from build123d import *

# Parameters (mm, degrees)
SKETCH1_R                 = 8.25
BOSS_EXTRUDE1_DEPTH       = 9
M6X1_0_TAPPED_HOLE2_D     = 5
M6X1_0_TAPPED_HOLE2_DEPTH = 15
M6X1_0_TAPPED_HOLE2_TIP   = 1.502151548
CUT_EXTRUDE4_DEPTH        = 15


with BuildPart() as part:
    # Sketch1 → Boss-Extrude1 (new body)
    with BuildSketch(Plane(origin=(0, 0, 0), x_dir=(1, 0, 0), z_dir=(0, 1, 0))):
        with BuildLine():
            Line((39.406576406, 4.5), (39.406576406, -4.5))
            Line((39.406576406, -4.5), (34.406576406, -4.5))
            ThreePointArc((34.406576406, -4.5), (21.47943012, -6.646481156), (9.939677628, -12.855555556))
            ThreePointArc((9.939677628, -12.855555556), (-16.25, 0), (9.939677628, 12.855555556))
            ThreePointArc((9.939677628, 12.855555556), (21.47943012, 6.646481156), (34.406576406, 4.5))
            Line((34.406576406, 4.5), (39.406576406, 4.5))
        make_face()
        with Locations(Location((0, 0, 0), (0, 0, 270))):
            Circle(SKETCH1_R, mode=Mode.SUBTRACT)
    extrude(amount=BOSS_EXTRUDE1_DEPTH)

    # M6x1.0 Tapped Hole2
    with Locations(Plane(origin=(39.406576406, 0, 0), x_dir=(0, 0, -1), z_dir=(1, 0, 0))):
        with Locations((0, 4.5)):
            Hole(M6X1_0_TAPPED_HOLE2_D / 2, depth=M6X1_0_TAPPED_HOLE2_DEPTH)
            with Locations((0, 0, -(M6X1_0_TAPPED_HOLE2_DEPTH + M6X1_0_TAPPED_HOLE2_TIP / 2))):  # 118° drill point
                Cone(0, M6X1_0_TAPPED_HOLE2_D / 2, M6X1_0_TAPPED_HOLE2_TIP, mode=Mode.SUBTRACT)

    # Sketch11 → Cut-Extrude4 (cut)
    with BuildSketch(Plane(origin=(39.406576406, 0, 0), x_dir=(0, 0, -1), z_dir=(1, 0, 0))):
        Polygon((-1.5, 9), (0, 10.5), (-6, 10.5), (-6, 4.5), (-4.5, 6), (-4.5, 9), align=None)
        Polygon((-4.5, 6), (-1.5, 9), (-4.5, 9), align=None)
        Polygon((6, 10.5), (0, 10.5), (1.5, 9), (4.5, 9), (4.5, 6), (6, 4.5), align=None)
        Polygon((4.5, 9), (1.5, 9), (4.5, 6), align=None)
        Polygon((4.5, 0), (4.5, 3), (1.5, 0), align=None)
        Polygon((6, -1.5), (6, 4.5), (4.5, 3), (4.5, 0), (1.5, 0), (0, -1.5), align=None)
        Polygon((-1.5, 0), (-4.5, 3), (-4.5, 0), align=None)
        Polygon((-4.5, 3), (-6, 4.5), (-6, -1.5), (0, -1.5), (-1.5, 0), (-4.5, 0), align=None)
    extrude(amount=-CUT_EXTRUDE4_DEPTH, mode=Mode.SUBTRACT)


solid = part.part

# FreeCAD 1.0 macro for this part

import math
import FreeCAD as App
import Part
import Sketcher

V = App.Vector


def add_polygon(sketch, points):
    """Adds a closed chain of lines whose ends are joined by coincident constraints."""
    first, n = sketch.GeometryCount, len(points)
    for a, b in zip(points, points[1:] + points[:1]):
        sketch.addGeometry(Part.LineSegment(App.Vector(*a, 0), App.Vector(*b, 0)), False)
    for i in range(n):
        sketch.addConstraint(Sketcher.Constraint("Coincident", first + i, 2, first + (i + 1) % n, 1))

doc = App.newDocument("Part")
body = doc.addObject("PartDesign::Body", "Body")

# Sketch on XZ plane
sketch1 = doc.addObject("Sketcher::SketchObject", "Sketch")
body.addObject(sketch1)
sketch1.AttachmentSupport = (doc.XZ_Plane, [""])
sketch1.MapMode = "FlatFace"
sketch1.addGeometry([
    Part.LineSegment(V(39, 4, 0), V(39, -4, 0)),  # 0
    Part.LineSegment(V(39, -4, 0), V(34, -4, 0)),  # 1
    Part.ArcOfCircle(Part.Circle(V(34, -45, 0), V(0, 0, 1), 40), math.radians(90), math.radians(128)),  # 2
    Part.ArcOfCircle(Part.Circle(V(0, 0, 0), V(0, 0, 1), 16), math.radians(52), math.radians(308)),  # 3
    Part.ArcOfCircle(Part.Circle(V(34, 45, 0), V(0, 0, 1), 40), math.radians(-128), math.radians(-90)),  # 4
    Part.LineSegment(V(34, 4, 0), V(39, 4, 0)),  # 5
    Part.Circle(V(0, 0, 0), V(0, 0, 1), 8),  # 6
], False)
sketch1.addConstraint([
    Sketcher.Constraint("Coincident", 0, 2, 1, 1),
    Sketcher.Constraint("Tangent", 1, 2, 2, 1),
    Sketcher.Constraint("Tangent", 2, 2, 3, 2),
    Sketcher.Constraint("Tangent", 3, 1, 4, 1),
    Sketcher.Constraint("Tangent", 4, 2, 5, 1),
    Sketcher.Constraint("Coincident", 5, 2, 0, 1),
    Sketcher.Constraint("Vertical", 0),
    Sketcher.Constraint("Horizontal", 1),
    Sketcher.Constraint("Horizontal", 5),
    Sketcher.Constraint("Coincident", 3, 3, -1, 1),
    Sketcher.Constraint("Coincident", 6, 3, -1, 1),
    Sketcher.Constraint("Equal", 2, 4),
    Sketcher.Constraint("Vertical", 2, 3, 4, 3),
    Sketcher.Constraint("Radius", 2, 40.0),
    Sketcher.Constraint("Diameter", 6, 16.5),
    Sketcher.Constraint("DistanceX", 1, 2, 1, 1, 5.0),
    Sketcher.Constraint("DistanceY", 0, 2, 0, 1, 9.0),
    Sketcher.Constraint("Radius", 3, 16.25),
])
pad1 = doc.addObject("PartDesign::Pad", "Pad")
body.addObject(pad1)
pad1.Profile = sketch1
pad1.Length = 9
pad1.Reversed = True

# Sketch on YZ plane
sketch2 = doc.addObject("Sketcher::SketchObject", "Sketch001")
body.addObject(sketch2)
sketch2.AttachmentSupport = (doc.YZ_Plane, [""])
sketch2.MapMode = "FlatFace"
sketch2.AttachmentOffset = App.Placement(V(0, 0, 39.406576), App.Rotation())
sketch2.addGeometry(Part.Circle(V(4.5, 0, 0), V(0, 0, 1), 2.5), False)
sketch2.addConstraint([
    Sketcher.Constraint("PointOnObject", 0, 3, -1),
    Sketcher.Constraint("Diameter", 0, 5.0),
    Sketcher.Constraint("DistanceX", -1, 1, 0, 3, 4.5),
])
doc.recompute()
hole = doc.addObject("PartDesign::Hole", "Hole")
body.addObject(hole)
hole.Profile = sketch2
hole.ThreadType = "None"
hole.Diameter = 5
hole.DepthType = "Dimension"
hole.Depth = 15
hole.DrillPoint = "Angled"
hole.DrillPointAngle = 118

# Sketch on YZ plane
sketch3 = doc.addObject("Sketcher::SketchObject", "Sketch002")
body.addObject(sketch3)
sketch3.AttachmentSupport = (doc.YZ_Plane, [""])
sketch3.MapMode = "FlatFace"
sketch3.AttachmentOffset = App.Placement(V(0, 0, 39.406576), App.Rotation())
add_polygon(sketch3, [(10, 0), (10, 6), (4, 6)])  # lines 0-2
add_polygon(sketch3, [(10, -6), (10, 0), (4, -6)])  # lines 3-5
add_polygon(sketch3, [(-2, 0), (-2, -6), (4, -6)])  # lines 6-8
add_polygon(sketch3, [(4, 6), (-2, 6), (-2, 0)])  # lines 9-11
sketch3.addConstraint([
    Sketcher.Constraint("Vertical", 0),
    Sketcher.Constraint("Horizontal", 1),
    Sketcher.Constraint("Vertical", 3),
    Sketcher.Constraint("Horizontal", 5),
    Sketcher.Constraint("Vertical", 6),
    Sketcher.Constraint("Horizontal", 7),
    Sketcher.Constraint("Horizontal", 9),
    Sketcher.Constraint("Vertical", 10),
    Sketcher.Constraint("Coincident", 3, 2, 2, 2),
    Sketcher.Constraint("Coincident", 7, 2, 4, 2),
    Sketcher.Constraint("Coincident", 10, 2, 8, 2),
    Sketcher.Constraint("Coincident", 11, 2, 1, 2),
    Sketcher.Constraint("Symmetric", 1, 2, 4, 2, -1),
    Sketcher.Constraint("PointOnObject", 2, 2, -1),
    Sketcher.Constraint("PointOnObject", 8, 2, -1),
    Sketcher.Constraint("Perpendicular", 2, 4),
    Sketcher.Constraint("Perpendicular", 4, 8),
    Sketcher.Constraint("DistanceX", 1, 2, 1, 1, 6.0),
    Sketcher.Constraint("DistanceX", -1, 1, 0, 2, 10.5),
])
pocket1 = doc.addObject("PartDesign::Pocket", "Pocket")
body.addObject(pocket1)
pocket1.Profile = sketch3
pocket1.Length = 15

doc.recompute()
